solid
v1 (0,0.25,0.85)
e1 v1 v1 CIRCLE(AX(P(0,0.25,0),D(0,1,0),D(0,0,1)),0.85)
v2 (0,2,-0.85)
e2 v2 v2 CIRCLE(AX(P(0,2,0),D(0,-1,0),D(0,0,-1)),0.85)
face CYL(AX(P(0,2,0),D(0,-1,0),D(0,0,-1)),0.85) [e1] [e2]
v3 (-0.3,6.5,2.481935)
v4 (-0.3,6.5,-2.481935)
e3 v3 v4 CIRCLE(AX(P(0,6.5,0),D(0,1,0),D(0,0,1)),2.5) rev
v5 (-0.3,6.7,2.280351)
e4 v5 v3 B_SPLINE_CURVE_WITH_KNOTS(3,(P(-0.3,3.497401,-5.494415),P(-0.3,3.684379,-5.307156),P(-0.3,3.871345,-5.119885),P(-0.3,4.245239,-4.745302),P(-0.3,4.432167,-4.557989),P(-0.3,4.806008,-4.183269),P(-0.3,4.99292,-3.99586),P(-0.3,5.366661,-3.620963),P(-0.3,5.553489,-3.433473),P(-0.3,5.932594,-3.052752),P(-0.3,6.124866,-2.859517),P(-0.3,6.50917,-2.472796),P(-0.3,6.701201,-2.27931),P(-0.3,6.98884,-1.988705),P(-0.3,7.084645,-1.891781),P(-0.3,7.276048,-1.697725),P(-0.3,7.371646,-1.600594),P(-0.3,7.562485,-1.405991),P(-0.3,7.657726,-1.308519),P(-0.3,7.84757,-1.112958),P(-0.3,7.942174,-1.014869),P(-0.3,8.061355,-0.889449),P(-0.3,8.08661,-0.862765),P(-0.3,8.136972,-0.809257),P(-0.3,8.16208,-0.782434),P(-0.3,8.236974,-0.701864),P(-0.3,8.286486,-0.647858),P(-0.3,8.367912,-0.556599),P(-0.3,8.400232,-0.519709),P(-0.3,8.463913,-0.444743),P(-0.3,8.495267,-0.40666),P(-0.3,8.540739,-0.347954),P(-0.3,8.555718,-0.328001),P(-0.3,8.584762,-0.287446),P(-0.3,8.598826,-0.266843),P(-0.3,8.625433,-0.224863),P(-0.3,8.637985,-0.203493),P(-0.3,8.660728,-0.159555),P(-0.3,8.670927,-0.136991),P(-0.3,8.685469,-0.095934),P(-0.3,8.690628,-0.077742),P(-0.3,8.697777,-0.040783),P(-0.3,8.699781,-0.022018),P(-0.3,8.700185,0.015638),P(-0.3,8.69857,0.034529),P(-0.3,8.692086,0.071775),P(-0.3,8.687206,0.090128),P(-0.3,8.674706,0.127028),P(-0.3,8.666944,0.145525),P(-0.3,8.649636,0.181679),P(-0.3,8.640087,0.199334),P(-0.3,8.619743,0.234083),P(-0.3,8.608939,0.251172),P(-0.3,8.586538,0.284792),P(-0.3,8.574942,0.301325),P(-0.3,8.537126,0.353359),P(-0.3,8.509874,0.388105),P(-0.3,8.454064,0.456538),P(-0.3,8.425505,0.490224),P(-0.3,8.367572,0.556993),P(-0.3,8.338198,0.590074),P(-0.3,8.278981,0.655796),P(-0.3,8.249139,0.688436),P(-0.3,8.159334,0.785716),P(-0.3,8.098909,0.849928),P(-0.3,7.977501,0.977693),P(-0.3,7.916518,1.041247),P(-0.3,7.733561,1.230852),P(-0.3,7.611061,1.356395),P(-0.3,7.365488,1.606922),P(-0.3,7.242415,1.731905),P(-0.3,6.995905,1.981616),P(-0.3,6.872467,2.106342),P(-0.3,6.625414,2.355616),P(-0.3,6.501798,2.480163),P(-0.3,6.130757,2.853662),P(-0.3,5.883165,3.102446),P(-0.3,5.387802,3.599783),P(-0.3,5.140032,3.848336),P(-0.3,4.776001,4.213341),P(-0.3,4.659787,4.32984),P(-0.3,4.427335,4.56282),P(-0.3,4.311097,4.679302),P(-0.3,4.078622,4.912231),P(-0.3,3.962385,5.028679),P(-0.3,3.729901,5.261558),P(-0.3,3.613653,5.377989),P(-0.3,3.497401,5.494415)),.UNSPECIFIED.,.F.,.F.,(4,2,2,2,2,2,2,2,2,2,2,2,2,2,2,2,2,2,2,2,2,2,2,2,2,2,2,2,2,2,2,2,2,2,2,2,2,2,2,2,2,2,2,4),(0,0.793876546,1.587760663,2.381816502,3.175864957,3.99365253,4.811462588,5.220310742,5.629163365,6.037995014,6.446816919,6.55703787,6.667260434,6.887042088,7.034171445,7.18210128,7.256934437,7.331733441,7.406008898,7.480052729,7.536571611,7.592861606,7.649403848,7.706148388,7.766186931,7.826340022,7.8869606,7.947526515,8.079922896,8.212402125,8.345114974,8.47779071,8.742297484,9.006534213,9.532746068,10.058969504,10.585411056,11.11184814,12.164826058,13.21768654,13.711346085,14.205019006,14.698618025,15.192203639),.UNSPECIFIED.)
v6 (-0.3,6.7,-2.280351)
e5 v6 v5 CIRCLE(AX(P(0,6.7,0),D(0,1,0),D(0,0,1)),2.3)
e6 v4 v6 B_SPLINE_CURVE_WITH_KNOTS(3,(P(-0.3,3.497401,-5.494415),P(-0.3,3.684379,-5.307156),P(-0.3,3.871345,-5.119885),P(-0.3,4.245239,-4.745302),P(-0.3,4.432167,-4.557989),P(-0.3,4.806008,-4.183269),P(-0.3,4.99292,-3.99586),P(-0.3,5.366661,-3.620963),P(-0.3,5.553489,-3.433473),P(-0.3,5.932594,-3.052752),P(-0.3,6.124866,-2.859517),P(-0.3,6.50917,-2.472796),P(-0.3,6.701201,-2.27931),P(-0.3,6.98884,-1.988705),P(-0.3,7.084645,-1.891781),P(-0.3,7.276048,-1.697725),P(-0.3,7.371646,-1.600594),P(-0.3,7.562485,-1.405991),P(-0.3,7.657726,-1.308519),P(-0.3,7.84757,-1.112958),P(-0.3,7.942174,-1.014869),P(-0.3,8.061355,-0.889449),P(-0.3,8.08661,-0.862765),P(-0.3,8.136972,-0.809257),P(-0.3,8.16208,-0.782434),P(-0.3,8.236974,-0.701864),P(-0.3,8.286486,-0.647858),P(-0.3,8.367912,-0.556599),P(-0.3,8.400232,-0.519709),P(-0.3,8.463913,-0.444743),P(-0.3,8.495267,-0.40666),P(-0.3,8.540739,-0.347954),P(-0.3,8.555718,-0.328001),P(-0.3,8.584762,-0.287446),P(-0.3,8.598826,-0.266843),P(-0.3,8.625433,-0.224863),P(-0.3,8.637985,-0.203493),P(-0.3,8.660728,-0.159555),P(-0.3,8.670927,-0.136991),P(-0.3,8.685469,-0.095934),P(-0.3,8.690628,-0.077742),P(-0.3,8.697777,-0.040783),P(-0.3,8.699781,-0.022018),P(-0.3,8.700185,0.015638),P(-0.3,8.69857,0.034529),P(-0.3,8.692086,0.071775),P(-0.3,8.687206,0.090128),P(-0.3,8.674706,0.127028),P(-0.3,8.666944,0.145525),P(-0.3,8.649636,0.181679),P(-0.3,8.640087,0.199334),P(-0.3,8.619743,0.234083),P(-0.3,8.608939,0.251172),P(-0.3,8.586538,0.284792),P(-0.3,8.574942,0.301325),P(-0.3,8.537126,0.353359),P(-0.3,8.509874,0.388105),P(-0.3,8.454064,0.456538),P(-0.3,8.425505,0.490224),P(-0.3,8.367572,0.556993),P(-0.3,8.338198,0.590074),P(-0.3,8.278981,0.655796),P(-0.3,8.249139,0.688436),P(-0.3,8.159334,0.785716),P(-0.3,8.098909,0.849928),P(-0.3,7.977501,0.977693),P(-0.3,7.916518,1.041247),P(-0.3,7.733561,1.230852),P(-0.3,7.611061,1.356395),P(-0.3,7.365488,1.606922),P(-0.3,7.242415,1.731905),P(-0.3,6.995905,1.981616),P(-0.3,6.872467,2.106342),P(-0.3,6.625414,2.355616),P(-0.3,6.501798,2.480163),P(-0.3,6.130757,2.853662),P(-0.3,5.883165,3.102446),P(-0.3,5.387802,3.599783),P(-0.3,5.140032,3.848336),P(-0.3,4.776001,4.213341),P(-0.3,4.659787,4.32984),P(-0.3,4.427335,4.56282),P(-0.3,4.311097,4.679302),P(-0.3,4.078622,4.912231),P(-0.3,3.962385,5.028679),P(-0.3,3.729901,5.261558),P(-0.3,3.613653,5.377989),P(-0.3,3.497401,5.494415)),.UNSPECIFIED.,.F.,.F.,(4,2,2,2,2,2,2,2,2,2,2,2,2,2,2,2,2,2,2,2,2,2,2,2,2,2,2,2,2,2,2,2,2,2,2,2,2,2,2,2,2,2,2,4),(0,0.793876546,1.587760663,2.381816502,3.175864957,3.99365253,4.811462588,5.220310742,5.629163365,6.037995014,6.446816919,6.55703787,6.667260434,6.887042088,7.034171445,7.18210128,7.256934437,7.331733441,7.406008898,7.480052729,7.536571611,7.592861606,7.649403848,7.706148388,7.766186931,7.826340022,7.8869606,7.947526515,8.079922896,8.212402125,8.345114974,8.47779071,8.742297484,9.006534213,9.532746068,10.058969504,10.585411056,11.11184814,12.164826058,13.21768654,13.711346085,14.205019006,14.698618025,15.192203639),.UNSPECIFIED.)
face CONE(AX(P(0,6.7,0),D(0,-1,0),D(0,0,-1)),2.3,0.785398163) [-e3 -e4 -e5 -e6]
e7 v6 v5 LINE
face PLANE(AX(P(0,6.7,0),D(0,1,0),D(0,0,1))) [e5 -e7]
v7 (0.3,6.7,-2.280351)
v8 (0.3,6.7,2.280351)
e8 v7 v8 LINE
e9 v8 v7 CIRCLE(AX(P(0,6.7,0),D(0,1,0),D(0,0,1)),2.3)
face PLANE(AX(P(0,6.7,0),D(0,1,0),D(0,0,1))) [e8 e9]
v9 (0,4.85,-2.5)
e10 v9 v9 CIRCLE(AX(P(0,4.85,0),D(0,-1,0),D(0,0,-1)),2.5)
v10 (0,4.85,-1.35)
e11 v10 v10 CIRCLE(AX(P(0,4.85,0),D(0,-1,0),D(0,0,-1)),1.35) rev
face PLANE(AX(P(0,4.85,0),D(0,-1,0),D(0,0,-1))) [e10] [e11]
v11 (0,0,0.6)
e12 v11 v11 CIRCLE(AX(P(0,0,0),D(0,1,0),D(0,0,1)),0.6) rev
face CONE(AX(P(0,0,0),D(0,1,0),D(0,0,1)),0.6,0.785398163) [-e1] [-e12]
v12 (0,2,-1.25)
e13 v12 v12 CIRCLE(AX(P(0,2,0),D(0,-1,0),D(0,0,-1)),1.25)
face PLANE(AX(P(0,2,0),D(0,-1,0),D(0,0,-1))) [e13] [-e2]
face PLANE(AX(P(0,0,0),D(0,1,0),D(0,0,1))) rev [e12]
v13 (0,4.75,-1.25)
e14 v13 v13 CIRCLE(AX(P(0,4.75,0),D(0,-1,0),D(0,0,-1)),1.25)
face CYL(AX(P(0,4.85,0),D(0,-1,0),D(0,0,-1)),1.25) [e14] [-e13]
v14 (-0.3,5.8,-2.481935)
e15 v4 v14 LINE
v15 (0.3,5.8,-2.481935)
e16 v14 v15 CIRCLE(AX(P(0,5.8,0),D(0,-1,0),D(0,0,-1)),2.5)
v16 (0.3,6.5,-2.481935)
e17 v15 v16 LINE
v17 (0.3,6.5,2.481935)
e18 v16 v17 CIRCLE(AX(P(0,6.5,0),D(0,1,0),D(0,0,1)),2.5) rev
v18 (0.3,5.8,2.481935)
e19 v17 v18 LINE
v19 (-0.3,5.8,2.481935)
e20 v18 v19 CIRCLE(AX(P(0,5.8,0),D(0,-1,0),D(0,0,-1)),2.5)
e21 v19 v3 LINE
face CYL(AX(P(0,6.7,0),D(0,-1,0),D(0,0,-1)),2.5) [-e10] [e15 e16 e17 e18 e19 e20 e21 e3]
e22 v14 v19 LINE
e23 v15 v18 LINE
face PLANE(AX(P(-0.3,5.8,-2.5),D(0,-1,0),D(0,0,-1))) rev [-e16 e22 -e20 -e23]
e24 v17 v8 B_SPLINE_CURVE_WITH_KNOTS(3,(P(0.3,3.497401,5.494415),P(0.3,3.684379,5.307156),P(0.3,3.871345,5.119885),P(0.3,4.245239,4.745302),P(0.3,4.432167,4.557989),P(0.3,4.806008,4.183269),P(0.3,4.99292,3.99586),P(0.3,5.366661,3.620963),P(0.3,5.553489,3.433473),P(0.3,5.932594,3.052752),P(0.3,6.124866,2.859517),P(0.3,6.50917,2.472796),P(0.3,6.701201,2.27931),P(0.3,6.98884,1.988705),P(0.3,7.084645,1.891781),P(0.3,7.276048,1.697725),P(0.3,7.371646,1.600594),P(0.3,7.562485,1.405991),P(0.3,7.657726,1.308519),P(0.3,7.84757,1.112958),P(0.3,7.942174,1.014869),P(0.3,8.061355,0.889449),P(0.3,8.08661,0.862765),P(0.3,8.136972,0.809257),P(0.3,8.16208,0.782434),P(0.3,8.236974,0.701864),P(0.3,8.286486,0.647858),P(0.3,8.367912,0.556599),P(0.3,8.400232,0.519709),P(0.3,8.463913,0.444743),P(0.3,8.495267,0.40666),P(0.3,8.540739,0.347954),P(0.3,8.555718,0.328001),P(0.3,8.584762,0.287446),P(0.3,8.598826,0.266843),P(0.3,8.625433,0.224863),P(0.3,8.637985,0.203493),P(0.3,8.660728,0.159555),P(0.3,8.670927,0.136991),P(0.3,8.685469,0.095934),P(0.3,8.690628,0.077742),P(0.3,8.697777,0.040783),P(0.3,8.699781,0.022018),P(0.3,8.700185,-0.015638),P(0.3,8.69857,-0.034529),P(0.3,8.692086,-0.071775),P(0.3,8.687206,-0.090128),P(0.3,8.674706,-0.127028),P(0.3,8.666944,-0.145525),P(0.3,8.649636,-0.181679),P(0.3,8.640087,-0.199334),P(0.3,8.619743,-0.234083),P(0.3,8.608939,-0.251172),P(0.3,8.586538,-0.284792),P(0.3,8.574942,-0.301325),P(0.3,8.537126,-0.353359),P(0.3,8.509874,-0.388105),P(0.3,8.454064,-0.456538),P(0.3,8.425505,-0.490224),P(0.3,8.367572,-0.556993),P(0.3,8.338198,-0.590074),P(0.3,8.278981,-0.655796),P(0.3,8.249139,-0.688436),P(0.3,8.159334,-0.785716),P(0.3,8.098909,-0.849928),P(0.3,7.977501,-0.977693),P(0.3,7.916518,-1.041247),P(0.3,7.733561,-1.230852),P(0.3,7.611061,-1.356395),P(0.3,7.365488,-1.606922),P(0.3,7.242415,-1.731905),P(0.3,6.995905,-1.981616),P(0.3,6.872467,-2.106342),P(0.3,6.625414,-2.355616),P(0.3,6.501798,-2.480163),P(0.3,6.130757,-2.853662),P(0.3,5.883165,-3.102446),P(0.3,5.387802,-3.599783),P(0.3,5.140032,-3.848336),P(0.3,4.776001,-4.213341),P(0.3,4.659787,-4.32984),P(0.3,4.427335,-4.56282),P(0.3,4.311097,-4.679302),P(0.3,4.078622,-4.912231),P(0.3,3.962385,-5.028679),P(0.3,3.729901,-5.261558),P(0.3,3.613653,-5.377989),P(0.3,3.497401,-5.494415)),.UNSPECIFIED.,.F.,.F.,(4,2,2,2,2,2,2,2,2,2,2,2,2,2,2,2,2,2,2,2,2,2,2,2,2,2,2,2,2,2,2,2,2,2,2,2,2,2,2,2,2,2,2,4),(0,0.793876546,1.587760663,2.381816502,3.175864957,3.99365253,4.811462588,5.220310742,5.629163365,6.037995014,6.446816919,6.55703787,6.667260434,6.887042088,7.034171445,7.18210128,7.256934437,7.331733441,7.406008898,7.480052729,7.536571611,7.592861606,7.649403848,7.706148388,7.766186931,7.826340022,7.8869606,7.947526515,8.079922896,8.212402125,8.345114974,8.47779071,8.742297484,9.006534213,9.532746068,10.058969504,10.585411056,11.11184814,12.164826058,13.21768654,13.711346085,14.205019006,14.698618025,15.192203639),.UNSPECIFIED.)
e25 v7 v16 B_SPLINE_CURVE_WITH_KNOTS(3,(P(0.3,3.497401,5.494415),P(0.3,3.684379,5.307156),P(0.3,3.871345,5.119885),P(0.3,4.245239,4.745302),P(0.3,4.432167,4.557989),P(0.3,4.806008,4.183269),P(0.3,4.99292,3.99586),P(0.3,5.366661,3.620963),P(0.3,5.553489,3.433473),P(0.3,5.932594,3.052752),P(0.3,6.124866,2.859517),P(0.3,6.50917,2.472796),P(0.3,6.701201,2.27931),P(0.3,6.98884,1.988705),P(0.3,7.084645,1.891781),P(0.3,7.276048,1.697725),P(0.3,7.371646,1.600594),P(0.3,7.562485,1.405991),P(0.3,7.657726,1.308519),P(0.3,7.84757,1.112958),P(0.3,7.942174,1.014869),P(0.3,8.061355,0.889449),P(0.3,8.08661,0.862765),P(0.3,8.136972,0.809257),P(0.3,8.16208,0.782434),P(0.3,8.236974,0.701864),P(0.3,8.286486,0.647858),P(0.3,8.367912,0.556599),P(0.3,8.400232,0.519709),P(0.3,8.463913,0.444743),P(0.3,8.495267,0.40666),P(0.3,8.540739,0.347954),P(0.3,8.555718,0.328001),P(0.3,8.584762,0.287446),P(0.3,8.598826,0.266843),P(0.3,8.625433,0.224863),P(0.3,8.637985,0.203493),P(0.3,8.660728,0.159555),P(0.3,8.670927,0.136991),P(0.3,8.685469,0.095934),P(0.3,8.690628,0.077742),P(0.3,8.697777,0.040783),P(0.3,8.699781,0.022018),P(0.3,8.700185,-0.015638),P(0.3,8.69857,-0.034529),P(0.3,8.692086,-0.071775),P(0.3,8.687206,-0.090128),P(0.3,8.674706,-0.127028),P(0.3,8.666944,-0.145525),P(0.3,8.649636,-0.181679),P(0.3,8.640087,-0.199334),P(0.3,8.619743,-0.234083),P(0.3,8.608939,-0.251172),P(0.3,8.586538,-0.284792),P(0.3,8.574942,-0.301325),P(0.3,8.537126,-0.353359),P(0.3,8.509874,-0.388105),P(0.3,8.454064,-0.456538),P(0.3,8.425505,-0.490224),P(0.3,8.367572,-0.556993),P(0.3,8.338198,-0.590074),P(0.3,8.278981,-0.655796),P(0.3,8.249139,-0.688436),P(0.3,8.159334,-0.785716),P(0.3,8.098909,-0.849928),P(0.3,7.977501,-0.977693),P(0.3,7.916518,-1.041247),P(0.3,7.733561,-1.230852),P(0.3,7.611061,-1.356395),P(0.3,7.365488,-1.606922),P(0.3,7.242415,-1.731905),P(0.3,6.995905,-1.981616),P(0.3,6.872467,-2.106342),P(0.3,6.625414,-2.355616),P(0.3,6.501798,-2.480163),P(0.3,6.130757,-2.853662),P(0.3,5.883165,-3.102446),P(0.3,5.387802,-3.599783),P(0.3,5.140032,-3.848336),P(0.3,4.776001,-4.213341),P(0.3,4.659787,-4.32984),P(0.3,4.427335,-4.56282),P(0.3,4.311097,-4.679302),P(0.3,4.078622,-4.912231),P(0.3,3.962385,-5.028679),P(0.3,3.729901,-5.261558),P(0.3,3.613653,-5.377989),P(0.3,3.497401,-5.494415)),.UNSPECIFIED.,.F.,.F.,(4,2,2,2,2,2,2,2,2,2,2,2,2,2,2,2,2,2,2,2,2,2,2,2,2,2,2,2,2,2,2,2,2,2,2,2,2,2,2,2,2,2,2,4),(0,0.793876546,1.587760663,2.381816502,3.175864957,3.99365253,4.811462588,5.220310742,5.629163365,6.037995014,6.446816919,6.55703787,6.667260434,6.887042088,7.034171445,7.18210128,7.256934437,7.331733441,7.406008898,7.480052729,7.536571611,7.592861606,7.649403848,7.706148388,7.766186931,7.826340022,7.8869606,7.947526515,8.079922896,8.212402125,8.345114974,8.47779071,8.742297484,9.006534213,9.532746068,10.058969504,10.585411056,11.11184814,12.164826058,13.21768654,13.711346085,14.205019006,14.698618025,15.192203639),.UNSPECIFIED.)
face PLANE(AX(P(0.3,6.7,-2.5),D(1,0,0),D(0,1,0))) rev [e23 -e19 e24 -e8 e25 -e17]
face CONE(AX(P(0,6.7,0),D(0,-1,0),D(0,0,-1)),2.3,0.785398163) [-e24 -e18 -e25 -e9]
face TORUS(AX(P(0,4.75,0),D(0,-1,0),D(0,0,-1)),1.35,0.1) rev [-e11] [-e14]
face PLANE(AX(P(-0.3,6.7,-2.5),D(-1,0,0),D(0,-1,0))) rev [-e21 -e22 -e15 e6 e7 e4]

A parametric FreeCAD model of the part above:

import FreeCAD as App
import Part
import Sketcher
Q = App.Units.Quantity


def edges_at(feature, points):
    """Names of the edges that pass closest to the given points."""
    edges = feature.Shape.Edges
    near = lambda p: min(range(len(edges)), key=lambda i: edges[i].distToShape(Part.Vertex(*p))[0])
    return sorted({f"Edge{near(p) + 1}" for p in points})

doc = App.newDocument("Part")
body = doc.addObject("PartDesign::Body", "Body")

sketch1 = doc.addObject("Sketcher::SketchObject", "Sketch")
body.addObject(sketch1)
sketch1.AttachmentSupport = (doc.XZ_Plane, [""])
sketch1.MapMode = "FlatFace"
sketch1.addGeometry(Part.Circle(App.Vector(0, 0, 0), App.Vector(0, 0, 1), 2.5), False)
sketch1.addConstraint([
    Sketcher.Constraint("Coincident", 0, 3, -1, 1),
    Sketcher.Constraint("Diameter", 0, Q("5 mm")),
])
pad1 = doc.addObject("PartDesign::Pad", "Pad")
body.addObject(pad1)
pad1.Profile = sketch1
pad1.Length = 6.7
pad1.Reversed = True

sketch2 = doc.addObject("Sketcher::SketchObject", "Sketch001")
body.addObject(sketch2)
sketch2.AttachmentSupport = (doc.XZ_Plane, [""])
sketch2.MapMode = "FlatFace"
sketch2.addGeometry([
    Part.LineSegment(App.Vector(-4.5, 4.5, 0), App.Vector(-4.5, -4.5, 0)),
    Part.LineSegment(App.Vector(-4.5, -4.5, 0), App.Vector(4.5, -4.5, 0)),
    Part.LineSegment(App.Vector(4.5, -4.5, 0), App.Vector(4.5, 4.5, 0)),
    Part.LineSegment(App.Vector(4.5, 4.5, 0), App.Vector(-4.5, 4.5, 0)),
    Part.Circle(App.Vector(0, 0, 0), App.Vector(0, 0, 1), 0.8),
], False)
sketch2.addConstraint([
    Sketcher.Constraint("Coincident", 0, 2, 1, 1),
    Sketcher.Constraint("Coincident", 1, 2, 2, 1),
    Sketcher.Constraint("Coincident", 2, 2, 3, 1),
    Sketcher.Constraint("Coincident", 3, 2, 0, 1),
    Sketcher.Constraint("Vertical", 0),
    Sketcher.Constraint("Horizontal", 1),
    Sketcher.Constraint("Vertical", 2),
    Sketcher.Constraint("Horizontal", 3),
    Sketcher.Constraint("Coincident", 4, 3, -1, 1),
    Sketcher.Constraint("Symmetric", 0, 2, 2, 2, -1, 1),
    Sketcher.Constraint("Equal", 3, 0),
    Sketcher.Constraint("Diameter", 4, Q("1.7 mm")),
    Sketcher.Constraint("DistanceX", 1, 1, 1, 2, Q("8.948 mm")),
])
pocket1 = doc.addObject("PartDesign::Pocket", "Pocket")
body.addObject(pocket1)
pocket1.Profile = sketch2
pocket1.Length = 2

sketch3 = doc.addObject("Sketcher::SketchObject", "Sketch002")
body.addObject(sketch3)
sketch3.AttachmentSupport = (doc.XZ_Plane, [""])
sketch3.MapMode = "FlatFace"
sketch3.AttachmentOffset = App.Placement(App.Vector(0, 0, -2), App.Rotation())
sketch3.addGeometry([
    Part.LineSegment(App.Vector(-4.5, 4.5, 0), App.Vector(-4.5, -4.5, 0)),
    Part.LineSegment(App.Vector(-4.5, -4.5, 0), App.Vector(4.5, -4.5, 0)),
    Part.LineSegment(App.Vector(4.5, -4.5, 0), App.Vector(4.5, 4.5, 0)),
    Part.LineSegment(App.Vector(4.5, 4.5, 0), App.Vector(-4.5, 4.5, 0)),
    Part.Circle(App.Vector(0, 0, 0), App.Vector(0, 0, 1), 1.2),
], False)
sketch3.addConstraint([
    Sketcher.Constraint("Coincident", 0, 2, 1, 1),
    Sketcher.Constraint("Coincident", 1, 2, 2, 1),
    Sketcher.Constraint("Coincident", 2, 2, 3, 1),
    Sketcher.Constraint("Coincident", 3, 2, 0, 1),
    Sketcher.Constraint("Vertical", 0),
    Sketcher.Constraint("Horizontal", 1),
    Sketcher.Constraint("Vertical", 2),
    Sketcher.Constraint("Horizontal", 3),
    Sketcher.Constraint("Coincident", 4, 3, -1, 1),
    Sketcher.Constraint("Symmetric", 0, 2, 2, 2, -1, 1),
    Sketcher.Constraint("Equal", 3, 0),
    Sketcher.Constraint("Diameter", 4, Q("2.5 mm")),
    Sketcher.Constraint("DistanceX", 1, 1, 1, 2, Q("8.948 mm")),
])
pocket2 = doc.addObject("PartDesign::Pocket", "Pocket001")
body.addObject(pocket2)
pocket2.Profile = sketch3
pocket2.Length = 2.85
doc.recompute()

chamfer = doc.addObject("PartDesign::Chamfer", "Chamfer")
body.addObject(chamfer)
chamfer.Base = (pocket2, edges_at(pocket2, [(-2.5, 6.7, 0)]))
chamfer.Size = 0.2

sketch4 = doc.addObject("Sketcher::SketchObject", "Sketch003")
body.addObject(sketch4)
sketch4.AttachmentSupport = (doc.XY_Plane, [""])
sketch4.MapMode = "FlatFace"
sketch4.addGeometry([
    Part.LineSegment(App.Vector(-0.3, 6.7, 0), App.Vector(-0.3, 5.8, 0)),
    Part.LineSegment(App.Vector(-0.3, 5.8, 0), App.Vector(0.3, 5.8, 0)),
    Part.LineSegment(App.Vector(0.3, 5.8, 0), App.Vector(0.3, 6.7, 0)),
    Part.LineSegment(App.Vector(0.3, 6.7, 0), App.Vector(-0.3, 6.7, 0)),
], False)
sketch4.addConstraint([
    Sketcher.Constraint("Coincident", 0, 2, 1, 1),
    Sketcher.Constraint("Coincident", 1, 2, 2, 1),
    Sketcher.Constraint("Coincident", 2, 2, 3, 1),
    Sketcher.Constraint("Coincident", 3, 2, 0, 1),
    Sketcher.Constraint("Vertical", 0),
    Sketcher.Constraint("Horizontal", 1),
    Sketcher.Constraint("Vertical", 2),
    Sketcher.Constraint("Horizontal", 3),
    Sketcher.Constraint("DistanceX", 1, 1, 1, 2, Q("0.6 mm")),
    Sketcher.Constraint("DistanceY", 0, 2, 0, 1, Q("0.9 mm")),
    Sketcher.Constraint("DistanceX", 0, 2, -1, 1, Q("0.3 mm")),
    Sketcher.Constraint("DistanceY", -1, 1, 0, 2, Q("5.8 mm")),
])
pocket3 = doc.addObject("PartDesign::Pocket", "Pocket002")
body.addObject(pocket3)
pocket3.Profile = sketch4
pocket3.Type = "ThroughAll"
pocket3.Midplane = True
doc.recompute()

chamfer2 = doc.addObject("PartDesign::Chamfer", "Chamfer001")
body.addObject(chamfer2)
chamfer2.Base = (pocket3, edges_at(pocket3, [(-0.85, 0, 0)]))
chamfer2.Size = 0.25
doc.recompute()

fillet = doc.addObject("PartDesign::Fillet", "Fillet")
body.addObject(fillet)
fillet.Base = (chamfer2, edges_at(chamfer2, [(-1.25, 4.85, 0)]))
fillet.Radius = 0.1

doc.recompute()
